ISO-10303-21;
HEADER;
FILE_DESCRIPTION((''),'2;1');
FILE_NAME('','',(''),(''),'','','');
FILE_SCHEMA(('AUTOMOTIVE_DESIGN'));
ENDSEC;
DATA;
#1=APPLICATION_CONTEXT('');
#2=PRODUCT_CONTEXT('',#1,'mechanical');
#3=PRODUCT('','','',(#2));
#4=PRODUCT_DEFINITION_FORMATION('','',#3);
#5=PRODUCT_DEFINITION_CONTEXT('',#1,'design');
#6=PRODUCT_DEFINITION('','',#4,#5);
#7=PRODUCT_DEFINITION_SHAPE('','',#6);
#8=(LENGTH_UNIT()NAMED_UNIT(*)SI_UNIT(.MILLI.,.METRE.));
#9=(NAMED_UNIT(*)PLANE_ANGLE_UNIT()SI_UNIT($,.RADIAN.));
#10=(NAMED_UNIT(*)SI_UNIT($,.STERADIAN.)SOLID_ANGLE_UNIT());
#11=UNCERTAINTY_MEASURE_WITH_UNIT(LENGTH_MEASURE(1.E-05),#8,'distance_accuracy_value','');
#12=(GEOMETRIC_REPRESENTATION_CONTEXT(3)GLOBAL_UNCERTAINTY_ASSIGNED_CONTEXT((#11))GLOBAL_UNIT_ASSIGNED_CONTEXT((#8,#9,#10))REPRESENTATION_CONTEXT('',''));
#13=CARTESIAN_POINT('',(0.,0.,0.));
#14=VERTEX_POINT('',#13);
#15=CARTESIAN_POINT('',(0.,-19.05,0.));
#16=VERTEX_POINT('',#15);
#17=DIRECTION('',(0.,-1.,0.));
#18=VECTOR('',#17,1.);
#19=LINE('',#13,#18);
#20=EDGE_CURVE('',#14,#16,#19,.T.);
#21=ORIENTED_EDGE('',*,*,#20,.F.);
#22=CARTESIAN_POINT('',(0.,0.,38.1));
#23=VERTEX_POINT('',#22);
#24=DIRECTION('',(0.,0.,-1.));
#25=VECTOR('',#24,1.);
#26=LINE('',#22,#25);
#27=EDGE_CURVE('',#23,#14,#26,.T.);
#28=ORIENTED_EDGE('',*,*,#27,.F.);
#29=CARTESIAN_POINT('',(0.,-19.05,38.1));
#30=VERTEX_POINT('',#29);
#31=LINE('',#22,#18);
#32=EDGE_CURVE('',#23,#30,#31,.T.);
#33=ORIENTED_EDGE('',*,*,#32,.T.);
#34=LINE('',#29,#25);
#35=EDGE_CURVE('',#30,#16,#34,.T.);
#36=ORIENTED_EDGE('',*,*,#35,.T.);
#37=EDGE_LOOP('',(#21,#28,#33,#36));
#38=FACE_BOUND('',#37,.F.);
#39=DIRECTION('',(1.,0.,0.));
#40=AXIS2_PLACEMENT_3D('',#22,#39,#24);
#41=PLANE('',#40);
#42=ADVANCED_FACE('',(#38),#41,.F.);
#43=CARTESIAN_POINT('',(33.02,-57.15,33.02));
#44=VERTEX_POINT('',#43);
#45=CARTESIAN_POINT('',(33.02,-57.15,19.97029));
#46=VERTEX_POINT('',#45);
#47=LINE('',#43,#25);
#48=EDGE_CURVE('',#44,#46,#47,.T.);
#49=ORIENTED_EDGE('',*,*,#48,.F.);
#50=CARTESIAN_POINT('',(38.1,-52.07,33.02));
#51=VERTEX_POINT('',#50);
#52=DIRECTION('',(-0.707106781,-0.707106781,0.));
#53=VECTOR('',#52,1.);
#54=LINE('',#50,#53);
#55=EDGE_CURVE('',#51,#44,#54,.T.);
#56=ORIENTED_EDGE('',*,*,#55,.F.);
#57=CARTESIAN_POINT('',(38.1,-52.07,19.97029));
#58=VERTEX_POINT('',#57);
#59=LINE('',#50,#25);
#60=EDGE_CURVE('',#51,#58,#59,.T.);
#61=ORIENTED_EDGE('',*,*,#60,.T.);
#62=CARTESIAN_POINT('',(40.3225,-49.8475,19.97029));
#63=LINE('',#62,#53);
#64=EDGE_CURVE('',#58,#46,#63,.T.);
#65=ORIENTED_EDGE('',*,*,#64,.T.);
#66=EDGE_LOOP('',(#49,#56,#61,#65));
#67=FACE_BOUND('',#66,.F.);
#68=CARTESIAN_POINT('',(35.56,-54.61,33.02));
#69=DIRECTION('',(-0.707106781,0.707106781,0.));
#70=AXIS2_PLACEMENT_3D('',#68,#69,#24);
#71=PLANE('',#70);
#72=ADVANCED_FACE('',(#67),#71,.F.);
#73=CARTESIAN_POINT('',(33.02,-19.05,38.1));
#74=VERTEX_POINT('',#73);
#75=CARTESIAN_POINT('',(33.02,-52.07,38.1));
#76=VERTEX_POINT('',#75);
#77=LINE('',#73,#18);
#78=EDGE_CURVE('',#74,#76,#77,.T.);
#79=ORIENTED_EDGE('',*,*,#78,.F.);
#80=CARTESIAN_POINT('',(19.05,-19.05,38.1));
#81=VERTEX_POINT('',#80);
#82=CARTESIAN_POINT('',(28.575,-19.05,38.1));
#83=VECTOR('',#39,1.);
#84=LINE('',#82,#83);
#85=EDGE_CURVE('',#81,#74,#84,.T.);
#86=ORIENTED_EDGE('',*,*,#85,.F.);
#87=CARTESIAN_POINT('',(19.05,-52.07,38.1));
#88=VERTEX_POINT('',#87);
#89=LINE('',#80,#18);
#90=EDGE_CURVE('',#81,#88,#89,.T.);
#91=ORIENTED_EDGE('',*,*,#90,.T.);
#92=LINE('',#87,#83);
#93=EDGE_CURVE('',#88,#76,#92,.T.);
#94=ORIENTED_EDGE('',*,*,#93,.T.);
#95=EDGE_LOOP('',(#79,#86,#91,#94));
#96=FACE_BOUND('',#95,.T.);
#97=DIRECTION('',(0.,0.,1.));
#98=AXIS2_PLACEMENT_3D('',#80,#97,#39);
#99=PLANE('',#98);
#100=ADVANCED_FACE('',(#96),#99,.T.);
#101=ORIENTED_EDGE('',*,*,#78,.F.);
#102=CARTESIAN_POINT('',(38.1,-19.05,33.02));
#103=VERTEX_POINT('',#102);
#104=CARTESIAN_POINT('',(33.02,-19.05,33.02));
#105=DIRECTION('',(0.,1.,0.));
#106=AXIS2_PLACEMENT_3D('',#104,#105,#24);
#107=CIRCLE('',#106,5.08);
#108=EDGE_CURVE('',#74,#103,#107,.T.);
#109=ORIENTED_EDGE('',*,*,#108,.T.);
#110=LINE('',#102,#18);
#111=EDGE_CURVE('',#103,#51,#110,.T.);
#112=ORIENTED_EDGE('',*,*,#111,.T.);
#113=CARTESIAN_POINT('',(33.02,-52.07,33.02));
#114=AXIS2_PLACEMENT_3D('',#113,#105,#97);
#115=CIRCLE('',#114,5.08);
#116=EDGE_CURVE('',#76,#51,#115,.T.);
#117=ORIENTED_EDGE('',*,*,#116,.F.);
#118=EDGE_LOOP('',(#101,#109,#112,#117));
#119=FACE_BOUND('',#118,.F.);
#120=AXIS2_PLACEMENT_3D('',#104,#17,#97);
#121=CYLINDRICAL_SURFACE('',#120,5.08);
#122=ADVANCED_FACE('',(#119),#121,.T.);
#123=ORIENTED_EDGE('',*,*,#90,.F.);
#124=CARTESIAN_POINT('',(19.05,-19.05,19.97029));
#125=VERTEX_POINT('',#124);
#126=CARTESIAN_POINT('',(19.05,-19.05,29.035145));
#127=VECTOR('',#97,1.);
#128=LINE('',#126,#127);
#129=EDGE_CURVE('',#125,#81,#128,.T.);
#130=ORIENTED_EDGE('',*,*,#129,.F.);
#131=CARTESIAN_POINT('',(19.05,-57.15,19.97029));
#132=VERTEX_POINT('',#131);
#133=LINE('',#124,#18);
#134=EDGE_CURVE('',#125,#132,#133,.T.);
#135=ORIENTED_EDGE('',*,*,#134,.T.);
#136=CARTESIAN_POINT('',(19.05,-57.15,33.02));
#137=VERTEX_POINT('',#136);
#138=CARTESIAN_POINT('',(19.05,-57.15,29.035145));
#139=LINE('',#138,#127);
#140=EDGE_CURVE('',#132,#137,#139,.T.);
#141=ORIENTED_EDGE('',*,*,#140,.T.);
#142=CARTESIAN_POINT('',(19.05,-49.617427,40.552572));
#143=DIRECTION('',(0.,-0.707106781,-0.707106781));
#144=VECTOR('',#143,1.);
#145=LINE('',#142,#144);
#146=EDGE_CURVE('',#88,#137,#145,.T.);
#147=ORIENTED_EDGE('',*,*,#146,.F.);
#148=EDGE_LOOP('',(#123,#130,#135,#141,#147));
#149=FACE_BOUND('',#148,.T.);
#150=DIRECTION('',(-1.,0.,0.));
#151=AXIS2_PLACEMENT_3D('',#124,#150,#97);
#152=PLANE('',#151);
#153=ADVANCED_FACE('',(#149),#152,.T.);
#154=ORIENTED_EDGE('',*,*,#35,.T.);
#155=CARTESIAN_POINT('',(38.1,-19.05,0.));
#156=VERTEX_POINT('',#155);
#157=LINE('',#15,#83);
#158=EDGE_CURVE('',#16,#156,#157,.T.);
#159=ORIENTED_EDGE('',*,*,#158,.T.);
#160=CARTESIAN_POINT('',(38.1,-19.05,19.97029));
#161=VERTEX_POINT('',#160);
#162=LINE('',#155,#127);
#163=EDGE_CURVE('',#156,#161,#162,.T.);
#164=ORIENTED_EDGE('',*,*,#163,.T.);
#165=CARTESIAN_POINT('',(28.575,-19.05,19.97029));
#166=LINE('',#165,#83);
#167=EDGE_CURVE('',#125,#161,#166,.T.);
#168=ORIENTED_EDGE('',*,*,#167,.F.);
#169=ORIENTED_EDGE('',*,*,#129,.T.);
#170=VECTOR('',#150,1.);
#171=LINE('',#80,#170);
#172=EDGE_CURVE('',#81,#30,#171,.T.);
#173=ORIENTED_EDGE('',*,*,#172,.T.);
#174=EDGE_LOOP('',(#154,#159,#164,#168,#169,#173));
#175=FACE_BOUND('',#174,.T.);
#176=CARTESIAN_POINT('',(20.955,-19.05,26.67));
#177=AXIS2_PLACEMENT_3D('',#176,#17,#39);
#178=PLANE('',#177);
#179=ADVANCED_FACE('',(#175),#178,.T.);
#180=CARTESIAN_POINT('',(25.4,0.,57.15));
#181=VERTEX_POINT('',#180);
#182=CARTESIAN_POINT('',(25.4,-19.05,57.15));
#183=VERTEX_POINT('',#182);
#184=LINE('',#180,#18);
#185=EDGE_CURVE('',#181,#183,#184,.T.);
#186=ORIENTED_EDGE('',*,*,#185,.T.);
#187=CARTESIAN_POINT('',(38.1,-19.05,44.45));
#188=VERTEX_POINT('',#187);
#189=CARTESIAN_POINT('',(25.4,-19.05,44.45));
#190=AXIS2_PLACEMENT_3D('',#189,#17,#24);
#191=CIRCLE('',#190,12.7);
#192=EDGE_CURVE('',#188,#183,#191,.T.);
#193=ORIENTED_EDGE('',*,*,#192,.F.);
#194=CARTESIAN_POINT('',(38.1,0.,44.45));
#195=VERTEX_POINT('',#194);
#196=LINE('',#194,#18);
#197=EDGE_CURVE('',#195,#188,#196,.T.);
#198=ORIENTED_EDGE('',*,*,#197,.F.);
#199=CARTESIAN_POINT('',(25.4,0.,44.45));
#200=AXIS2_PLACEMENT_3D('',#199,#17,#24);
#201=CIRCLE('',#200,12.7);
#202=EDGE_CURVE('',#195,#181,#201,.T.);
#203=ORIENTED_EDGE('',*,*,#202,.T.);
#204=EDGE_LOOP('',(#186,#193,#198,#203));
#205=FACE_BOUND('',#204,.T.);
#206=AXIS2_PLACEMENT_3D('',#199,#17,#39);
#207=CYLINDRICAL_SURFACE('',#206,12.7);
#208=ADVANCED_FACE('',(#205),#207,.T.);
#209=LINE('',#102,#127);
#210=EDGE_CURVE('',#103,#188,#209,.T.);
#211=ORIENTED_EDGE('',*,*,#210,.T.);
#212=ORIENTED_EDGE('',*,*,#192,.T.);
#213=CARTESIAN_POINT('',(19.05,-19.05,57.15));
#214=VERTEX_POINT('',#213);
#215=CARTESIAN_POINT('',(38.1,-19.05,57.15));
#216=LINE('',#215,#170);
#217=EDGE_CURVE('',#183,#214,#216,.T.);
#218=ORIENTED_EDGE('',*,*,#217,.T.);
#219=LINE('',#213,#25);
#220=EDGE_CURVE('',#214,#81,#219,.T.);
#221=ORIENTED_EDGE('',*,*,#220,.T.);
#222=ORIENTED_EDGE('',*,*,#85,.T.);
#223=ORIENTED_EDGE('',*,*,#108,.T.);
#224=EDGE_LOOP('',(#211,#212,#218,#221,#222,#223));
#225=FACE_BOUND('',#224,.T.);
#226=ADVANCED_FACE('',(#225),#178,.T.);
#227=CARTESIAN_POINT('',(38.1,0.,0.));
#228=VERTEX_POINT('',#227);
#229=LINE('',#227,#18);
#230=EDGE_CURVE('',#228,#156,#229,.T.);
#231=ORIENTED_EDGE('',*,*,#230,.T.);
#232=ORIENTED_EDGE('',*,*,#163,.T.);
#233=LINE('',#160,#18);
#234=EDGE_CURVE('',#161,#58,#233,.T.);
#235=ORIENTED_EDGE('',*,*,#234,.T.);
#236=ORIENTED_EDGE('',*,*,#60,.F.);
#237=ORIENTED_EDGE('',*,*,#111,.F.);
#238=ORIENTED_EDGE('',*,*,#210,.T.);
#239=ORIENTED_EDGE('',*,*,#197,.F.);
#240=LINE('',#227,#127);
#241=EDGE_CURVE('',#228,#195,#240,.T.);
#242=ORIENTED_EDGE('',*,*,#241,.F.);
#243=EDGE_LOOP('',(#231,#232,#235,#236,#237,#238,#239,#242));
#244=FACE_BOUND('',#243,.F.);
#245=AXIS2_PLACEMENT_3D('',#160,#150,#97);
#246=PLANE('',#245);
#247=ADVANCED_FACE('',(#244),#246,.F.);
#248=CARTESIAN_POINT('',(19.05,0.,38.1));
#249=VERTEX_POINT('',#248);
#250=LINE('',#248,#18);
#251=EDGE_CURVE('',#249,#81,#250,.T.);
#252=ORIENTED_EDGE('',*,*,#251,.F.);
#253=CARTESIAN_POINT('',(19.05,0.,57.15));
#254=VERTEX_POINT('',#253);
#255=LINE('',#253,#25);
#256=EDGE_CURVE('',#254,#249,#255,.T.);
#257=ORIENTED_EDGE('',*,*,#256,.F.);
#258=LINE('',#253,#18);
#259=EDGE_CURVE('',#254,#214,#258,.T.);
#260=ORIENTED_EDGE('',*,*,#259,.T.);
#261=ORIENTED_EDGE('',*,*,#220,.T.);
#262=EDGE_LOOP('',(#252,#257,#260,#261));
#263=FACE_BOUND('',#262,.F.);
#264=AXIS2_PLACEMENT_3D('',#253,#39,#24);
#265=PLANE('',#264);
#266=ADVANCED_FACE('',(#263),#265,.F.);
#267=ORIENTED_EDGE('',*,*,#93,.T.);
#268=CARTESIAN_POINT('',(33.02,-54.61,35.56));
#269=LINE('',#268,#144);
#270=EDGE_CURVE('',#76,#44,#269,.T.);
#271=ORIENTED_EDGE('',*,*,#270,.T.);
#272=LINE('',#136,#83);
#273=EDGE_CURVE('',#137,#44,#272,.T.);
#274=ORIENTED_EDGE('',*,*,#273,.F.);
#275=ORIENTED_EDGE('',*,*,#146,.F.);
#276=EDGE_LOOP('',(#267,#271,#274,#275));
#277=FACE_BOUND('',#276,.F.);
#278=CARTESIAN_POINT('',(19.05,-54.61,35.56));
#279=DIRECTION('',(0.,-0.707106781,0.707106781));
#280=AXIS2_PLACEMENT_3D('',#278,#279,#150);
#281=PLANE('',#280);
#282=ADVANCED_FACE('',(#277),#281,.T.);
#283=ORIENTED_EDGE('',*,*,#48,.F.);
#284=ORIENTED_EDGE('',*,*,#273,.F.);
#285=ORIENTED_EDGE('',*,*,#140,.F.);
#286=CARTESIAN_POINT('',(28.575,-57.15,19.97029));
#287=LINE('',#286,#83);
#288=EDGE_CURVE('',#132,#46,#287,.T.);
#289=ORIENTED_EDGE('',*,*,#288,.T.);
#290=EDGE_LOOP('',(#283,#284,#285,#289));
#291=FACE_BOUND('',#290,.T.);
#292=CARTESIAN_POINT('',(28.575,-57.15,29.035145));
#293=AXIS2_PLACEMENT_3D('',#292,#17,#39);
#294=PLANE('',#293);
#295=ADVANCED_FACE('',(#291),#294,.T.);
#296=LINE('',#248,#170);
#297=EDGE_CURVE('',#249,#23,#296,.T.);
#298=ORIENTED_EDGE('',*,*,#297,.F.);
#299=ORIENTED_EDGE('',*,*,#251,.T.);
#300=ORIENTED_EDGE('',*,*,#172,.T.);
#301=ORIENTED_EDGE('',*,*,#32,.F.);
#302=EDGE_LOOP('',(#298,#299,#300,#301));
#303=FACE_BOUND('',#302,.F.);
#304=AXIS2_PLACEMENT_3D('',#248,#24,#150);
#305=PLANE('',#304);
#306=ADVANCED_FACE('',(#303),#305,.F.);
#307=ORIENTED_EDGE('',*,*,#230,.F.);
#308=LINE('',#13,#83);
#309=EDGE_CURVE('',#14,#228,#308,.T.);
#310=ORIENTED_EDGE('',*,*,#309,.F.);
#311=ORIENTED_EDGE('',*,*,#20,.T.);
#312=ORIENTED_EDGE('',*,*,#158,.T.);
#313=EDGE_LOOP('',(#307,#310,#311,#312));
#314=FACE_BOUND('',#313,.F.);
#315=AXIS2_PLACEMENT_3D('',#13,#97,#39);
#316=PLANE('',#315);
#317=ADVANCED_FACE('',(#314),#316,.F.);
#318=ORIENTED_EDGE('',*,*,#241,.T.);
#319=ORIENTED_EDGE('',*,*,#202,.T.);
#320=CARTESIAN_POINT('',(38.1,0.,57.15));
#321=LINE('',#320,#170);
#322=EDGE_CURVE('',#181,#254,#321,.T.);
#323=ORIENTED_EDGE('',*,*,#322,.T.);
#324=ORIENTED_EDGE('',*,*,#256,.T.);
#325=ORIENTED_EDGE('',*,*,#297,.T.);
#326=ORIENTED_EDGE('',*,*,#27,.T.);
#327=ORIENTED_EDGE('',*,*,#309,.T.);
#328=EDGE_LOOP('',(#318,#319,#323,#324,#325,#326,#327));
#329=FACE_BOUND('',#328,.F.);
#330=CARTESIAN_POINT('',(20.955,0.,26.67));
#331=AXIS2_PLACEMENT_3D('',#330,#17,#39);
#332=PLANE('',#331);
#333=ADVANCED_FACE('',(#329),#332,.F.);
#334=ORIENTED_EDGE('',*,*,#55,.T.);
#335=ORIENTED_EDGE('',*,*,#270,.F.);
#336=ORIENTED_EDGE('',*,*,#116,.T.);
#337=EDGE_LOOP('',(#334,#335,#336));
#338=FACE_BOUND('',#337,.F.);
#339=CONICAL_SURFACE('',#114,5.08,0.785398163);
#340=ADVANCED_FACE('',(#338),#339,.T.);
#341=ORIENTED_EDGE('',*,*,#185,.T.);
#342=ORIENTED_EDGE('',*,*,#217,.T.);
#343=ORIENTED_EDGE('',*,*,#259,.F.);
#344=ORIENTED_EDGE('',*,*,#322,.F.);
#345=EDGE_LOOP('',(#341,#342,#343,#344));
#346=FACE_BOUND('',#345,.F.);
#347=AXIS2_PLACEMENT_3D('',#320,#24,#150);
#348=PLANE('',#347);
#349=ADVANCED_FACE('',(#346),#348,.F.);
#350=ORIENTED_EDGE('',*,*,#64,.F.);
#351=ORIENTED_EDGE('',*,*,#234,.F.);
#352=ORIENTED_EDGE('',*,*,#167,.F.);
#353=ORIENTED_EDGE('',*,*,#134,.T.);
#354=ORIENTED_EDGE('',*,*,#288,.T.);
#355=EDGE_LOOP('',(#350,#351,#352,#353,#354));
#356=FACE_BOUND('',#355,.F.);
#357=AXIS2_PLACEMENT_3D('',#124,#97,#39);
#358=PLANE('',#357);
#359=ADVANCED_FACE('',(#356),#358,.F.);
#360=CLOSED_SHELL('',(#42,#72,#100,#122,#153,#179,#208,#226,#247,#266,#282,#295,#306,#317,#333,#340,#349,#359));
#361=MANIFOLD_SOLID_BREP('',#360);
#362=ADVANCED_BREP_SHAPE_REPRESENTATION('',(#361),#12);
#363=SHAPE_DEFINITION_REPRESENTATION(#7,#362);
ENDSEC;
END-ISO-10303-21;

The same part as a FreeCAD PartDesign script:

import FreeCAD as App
import Part
import Sketcher

V = App.Vector
Q = App.Units.Quantity


def edges_at(feature, points):
    """Names of the edges that pass closest to the given points."""
    edges = feature.Shape.Edges
    near = lambda p: min(range(len(edges)), key=lambda i: edges[i].distToShape(Part.Vertex(*p))[0])
    return sorted({f"Edge{near(p) + 1}" for p in points})

doc = App.newDocument("Part")
body = doc.addObject("PartDesign::Body", "Body")

# Sketch on XZ plane
sketch1 = body.newObject("Sketcher::SketchObject", "Sketch")
sketch1.AttachmentSupport = (doc.getObject("XZ_Plane"), [""])
sketch1.MapMode = "FlatFace"
sketch1.addGeometry(Part.LineSegment(V(0, 38, 0), V(0, 0, 0)), False)
sketch1.addGeometry(Part.LineSegment(V(0, 0, 0), V(38, 0, 0)), False)
sketch1.addGeometry(Part.LineSegment(V(38, 0, 0), V(38, 57, 0)), False)
sketch1.addGeometry(Part.LineSegment(V(38, 57, 0), V(19, 57, 0)), False)
sketch1.addGeometry(Part.LineSegment(V(19, 57, 0), V(19, 38, 0)), False)
sketch1.addGeometry(Part.LineSegment(V(19, 38, 0), V(0, 38, 0)), False)
sketch1.addConstraint(Sketcher.Constraint("Coincident", 0, 2, 1, 1))
sketch1.addConstraint(Sketcher.Constraint("Coincident", 1, 2, 2, 1))
sketch1.addConstraint(Sketcher.Constraint("Coincident", 2, 2, 3, 1))
sketch1.addConstraint(Sketcher.Constraint("Coincident", 3, 2, 4, 1))
sketch1.addConstraint(Sketcher.Constraint("Coincident", 4, 2, 5, 1))
sketch1.addConstraint(Sketcher.Constraint("Coincident", 5, 2, 0, 1))
sketch1.addConstraint(Sketcher.Constraint("Vertical", 0))
sketch1.addConstraint(Sketcher.Constraint("Horizontal", 1))
sketch1.addConstraint(Sketcher.Constraint("Vertical", 2))
sketch1.addConstraint(Sketcher.Constraint("Horizontal", 3))
sketch1.addConstraint(Sketcher.Constraint("Vertical", 4))
sketch1.addConstraint(Sketcher.Constraint("Horizontal", 5))
sketch1.addConstraint(Sketcher.Constraint("Coincident", 0, 2, -1, 1))
sketch1.addConstraint(Sketcher.Constraint("Equal", 3, 5))
sketch1.addConstraint(Sketcher.Constraint("Equal", 1, 0))
sketch1.addConstraint(Sketcher.Constraint("Equal", 5, 4))
sketch1.addConstraint(Sketcher.Constraint("DistanceX", 1, 1, 1, 2, Q("1.5 in")))
pad1 = body.newObject("PartDesign::Pad", "Pad")
pad1.Profile = sketch1
pad1.Length = Q("0.75 in")

# Sketch on XZ plane
sketch2 = body.newObject("Sketcher::SketchObject", "Sketch001")
sketch2.AttachmentSupport = (doc.getObject("XZ_Plane"), [""])
sketch2.MapMode = "FlatFace"
sketch2.AttachmentOffset = App.Placement(V(0, 0, 0.75 * 25.4), App.Rotation())
sketch2.addGeometry(Part.LineSegment(V(19, 38, 0), V(19, 20, 0)), False)
sketch2.addGeometry(Part.LineSegment(V(19, 20, 0), V(38, 20, 0)), False)
sketch2.addGeometry(Part.LineSegment(V(38, 20, 0), V(38, 38, 0)), False)
sketch2.addGeometry(Part.LineSegment(V(38, 38, 0), V(19, 38, 0)), False)
sketch2.addConstraint(Sketcher.Constraint("Coincident", 0, 2, 1, 1))
sketch2.addConstraint(Sketcher.Constraint("Coincident", 1, 2, 2, 1))
sketch2.addConstraint(Sketcher.Constraint("Coincident", 2, 2, 3, 1))
sketch2.addConstraint(Sketcher.Constraint("Coincident", 3, 2, 0, 1))
sketch2.addConstraint(Sketcher.Constraint("Vertical", 0))
sketch2.addConstraint(Sketcher.Constraint("Horizontal", 1))
sketch2.addConstraint(Sketcher.Constraint("Vertical", 2))
sketch2.addConstraint(Sketcher.Constraint("Horizontal", 3))
sketch2.addConstraint(Sketcher.Constraint("DistanceX", 1, 1, 1, 2, Q("0.75 in")))
sketch2.addConstraint(Sketcher.Constraint("DistanceX", -1, 1, 1, 2, Q("1.5 in")))
sketch2.addConstraint(Sketcher.Constraint("DistanceY", -1, 1, 2, 2, Q("1.5 in")))
sketch2.addConstraint(Sketcher.Constraint("DistanceY", 0, 2, 0, 1, 18.12971))
pad2 = body.newObject("PartDesign::Pad", "Pad001")
pad2.Profile = sketch2
pad2.Length = Q("1.5 in")
doc.recompute()

fillet = body.newObject("PartDesign::Fillet", "Fillet")
fillet.Base = (pad2, edges_at(pad2, [(38.1, -38.1, 38.1)]))
fillet.Radius = Q("0.2 in")
doc.recompute()

chamfer = body.newObject("PartDesign::Chamfer", "Chamfer")
chamfer.Base = (fillet, edges_at(fillet, [(26.035, -57.15, 38.1)]))
chamfer.Size = Q("0.2 in")
doc.recompute()

fillet2 = body.newObject("PartDesign::Fillet", "Fillet001")
fillet2.Base = (chamfer, edges_at(chamfer, [(38.1, -9.525, 57.15)]))
fillet2.Radius = Q("0.5 in")

doc.recompute()
